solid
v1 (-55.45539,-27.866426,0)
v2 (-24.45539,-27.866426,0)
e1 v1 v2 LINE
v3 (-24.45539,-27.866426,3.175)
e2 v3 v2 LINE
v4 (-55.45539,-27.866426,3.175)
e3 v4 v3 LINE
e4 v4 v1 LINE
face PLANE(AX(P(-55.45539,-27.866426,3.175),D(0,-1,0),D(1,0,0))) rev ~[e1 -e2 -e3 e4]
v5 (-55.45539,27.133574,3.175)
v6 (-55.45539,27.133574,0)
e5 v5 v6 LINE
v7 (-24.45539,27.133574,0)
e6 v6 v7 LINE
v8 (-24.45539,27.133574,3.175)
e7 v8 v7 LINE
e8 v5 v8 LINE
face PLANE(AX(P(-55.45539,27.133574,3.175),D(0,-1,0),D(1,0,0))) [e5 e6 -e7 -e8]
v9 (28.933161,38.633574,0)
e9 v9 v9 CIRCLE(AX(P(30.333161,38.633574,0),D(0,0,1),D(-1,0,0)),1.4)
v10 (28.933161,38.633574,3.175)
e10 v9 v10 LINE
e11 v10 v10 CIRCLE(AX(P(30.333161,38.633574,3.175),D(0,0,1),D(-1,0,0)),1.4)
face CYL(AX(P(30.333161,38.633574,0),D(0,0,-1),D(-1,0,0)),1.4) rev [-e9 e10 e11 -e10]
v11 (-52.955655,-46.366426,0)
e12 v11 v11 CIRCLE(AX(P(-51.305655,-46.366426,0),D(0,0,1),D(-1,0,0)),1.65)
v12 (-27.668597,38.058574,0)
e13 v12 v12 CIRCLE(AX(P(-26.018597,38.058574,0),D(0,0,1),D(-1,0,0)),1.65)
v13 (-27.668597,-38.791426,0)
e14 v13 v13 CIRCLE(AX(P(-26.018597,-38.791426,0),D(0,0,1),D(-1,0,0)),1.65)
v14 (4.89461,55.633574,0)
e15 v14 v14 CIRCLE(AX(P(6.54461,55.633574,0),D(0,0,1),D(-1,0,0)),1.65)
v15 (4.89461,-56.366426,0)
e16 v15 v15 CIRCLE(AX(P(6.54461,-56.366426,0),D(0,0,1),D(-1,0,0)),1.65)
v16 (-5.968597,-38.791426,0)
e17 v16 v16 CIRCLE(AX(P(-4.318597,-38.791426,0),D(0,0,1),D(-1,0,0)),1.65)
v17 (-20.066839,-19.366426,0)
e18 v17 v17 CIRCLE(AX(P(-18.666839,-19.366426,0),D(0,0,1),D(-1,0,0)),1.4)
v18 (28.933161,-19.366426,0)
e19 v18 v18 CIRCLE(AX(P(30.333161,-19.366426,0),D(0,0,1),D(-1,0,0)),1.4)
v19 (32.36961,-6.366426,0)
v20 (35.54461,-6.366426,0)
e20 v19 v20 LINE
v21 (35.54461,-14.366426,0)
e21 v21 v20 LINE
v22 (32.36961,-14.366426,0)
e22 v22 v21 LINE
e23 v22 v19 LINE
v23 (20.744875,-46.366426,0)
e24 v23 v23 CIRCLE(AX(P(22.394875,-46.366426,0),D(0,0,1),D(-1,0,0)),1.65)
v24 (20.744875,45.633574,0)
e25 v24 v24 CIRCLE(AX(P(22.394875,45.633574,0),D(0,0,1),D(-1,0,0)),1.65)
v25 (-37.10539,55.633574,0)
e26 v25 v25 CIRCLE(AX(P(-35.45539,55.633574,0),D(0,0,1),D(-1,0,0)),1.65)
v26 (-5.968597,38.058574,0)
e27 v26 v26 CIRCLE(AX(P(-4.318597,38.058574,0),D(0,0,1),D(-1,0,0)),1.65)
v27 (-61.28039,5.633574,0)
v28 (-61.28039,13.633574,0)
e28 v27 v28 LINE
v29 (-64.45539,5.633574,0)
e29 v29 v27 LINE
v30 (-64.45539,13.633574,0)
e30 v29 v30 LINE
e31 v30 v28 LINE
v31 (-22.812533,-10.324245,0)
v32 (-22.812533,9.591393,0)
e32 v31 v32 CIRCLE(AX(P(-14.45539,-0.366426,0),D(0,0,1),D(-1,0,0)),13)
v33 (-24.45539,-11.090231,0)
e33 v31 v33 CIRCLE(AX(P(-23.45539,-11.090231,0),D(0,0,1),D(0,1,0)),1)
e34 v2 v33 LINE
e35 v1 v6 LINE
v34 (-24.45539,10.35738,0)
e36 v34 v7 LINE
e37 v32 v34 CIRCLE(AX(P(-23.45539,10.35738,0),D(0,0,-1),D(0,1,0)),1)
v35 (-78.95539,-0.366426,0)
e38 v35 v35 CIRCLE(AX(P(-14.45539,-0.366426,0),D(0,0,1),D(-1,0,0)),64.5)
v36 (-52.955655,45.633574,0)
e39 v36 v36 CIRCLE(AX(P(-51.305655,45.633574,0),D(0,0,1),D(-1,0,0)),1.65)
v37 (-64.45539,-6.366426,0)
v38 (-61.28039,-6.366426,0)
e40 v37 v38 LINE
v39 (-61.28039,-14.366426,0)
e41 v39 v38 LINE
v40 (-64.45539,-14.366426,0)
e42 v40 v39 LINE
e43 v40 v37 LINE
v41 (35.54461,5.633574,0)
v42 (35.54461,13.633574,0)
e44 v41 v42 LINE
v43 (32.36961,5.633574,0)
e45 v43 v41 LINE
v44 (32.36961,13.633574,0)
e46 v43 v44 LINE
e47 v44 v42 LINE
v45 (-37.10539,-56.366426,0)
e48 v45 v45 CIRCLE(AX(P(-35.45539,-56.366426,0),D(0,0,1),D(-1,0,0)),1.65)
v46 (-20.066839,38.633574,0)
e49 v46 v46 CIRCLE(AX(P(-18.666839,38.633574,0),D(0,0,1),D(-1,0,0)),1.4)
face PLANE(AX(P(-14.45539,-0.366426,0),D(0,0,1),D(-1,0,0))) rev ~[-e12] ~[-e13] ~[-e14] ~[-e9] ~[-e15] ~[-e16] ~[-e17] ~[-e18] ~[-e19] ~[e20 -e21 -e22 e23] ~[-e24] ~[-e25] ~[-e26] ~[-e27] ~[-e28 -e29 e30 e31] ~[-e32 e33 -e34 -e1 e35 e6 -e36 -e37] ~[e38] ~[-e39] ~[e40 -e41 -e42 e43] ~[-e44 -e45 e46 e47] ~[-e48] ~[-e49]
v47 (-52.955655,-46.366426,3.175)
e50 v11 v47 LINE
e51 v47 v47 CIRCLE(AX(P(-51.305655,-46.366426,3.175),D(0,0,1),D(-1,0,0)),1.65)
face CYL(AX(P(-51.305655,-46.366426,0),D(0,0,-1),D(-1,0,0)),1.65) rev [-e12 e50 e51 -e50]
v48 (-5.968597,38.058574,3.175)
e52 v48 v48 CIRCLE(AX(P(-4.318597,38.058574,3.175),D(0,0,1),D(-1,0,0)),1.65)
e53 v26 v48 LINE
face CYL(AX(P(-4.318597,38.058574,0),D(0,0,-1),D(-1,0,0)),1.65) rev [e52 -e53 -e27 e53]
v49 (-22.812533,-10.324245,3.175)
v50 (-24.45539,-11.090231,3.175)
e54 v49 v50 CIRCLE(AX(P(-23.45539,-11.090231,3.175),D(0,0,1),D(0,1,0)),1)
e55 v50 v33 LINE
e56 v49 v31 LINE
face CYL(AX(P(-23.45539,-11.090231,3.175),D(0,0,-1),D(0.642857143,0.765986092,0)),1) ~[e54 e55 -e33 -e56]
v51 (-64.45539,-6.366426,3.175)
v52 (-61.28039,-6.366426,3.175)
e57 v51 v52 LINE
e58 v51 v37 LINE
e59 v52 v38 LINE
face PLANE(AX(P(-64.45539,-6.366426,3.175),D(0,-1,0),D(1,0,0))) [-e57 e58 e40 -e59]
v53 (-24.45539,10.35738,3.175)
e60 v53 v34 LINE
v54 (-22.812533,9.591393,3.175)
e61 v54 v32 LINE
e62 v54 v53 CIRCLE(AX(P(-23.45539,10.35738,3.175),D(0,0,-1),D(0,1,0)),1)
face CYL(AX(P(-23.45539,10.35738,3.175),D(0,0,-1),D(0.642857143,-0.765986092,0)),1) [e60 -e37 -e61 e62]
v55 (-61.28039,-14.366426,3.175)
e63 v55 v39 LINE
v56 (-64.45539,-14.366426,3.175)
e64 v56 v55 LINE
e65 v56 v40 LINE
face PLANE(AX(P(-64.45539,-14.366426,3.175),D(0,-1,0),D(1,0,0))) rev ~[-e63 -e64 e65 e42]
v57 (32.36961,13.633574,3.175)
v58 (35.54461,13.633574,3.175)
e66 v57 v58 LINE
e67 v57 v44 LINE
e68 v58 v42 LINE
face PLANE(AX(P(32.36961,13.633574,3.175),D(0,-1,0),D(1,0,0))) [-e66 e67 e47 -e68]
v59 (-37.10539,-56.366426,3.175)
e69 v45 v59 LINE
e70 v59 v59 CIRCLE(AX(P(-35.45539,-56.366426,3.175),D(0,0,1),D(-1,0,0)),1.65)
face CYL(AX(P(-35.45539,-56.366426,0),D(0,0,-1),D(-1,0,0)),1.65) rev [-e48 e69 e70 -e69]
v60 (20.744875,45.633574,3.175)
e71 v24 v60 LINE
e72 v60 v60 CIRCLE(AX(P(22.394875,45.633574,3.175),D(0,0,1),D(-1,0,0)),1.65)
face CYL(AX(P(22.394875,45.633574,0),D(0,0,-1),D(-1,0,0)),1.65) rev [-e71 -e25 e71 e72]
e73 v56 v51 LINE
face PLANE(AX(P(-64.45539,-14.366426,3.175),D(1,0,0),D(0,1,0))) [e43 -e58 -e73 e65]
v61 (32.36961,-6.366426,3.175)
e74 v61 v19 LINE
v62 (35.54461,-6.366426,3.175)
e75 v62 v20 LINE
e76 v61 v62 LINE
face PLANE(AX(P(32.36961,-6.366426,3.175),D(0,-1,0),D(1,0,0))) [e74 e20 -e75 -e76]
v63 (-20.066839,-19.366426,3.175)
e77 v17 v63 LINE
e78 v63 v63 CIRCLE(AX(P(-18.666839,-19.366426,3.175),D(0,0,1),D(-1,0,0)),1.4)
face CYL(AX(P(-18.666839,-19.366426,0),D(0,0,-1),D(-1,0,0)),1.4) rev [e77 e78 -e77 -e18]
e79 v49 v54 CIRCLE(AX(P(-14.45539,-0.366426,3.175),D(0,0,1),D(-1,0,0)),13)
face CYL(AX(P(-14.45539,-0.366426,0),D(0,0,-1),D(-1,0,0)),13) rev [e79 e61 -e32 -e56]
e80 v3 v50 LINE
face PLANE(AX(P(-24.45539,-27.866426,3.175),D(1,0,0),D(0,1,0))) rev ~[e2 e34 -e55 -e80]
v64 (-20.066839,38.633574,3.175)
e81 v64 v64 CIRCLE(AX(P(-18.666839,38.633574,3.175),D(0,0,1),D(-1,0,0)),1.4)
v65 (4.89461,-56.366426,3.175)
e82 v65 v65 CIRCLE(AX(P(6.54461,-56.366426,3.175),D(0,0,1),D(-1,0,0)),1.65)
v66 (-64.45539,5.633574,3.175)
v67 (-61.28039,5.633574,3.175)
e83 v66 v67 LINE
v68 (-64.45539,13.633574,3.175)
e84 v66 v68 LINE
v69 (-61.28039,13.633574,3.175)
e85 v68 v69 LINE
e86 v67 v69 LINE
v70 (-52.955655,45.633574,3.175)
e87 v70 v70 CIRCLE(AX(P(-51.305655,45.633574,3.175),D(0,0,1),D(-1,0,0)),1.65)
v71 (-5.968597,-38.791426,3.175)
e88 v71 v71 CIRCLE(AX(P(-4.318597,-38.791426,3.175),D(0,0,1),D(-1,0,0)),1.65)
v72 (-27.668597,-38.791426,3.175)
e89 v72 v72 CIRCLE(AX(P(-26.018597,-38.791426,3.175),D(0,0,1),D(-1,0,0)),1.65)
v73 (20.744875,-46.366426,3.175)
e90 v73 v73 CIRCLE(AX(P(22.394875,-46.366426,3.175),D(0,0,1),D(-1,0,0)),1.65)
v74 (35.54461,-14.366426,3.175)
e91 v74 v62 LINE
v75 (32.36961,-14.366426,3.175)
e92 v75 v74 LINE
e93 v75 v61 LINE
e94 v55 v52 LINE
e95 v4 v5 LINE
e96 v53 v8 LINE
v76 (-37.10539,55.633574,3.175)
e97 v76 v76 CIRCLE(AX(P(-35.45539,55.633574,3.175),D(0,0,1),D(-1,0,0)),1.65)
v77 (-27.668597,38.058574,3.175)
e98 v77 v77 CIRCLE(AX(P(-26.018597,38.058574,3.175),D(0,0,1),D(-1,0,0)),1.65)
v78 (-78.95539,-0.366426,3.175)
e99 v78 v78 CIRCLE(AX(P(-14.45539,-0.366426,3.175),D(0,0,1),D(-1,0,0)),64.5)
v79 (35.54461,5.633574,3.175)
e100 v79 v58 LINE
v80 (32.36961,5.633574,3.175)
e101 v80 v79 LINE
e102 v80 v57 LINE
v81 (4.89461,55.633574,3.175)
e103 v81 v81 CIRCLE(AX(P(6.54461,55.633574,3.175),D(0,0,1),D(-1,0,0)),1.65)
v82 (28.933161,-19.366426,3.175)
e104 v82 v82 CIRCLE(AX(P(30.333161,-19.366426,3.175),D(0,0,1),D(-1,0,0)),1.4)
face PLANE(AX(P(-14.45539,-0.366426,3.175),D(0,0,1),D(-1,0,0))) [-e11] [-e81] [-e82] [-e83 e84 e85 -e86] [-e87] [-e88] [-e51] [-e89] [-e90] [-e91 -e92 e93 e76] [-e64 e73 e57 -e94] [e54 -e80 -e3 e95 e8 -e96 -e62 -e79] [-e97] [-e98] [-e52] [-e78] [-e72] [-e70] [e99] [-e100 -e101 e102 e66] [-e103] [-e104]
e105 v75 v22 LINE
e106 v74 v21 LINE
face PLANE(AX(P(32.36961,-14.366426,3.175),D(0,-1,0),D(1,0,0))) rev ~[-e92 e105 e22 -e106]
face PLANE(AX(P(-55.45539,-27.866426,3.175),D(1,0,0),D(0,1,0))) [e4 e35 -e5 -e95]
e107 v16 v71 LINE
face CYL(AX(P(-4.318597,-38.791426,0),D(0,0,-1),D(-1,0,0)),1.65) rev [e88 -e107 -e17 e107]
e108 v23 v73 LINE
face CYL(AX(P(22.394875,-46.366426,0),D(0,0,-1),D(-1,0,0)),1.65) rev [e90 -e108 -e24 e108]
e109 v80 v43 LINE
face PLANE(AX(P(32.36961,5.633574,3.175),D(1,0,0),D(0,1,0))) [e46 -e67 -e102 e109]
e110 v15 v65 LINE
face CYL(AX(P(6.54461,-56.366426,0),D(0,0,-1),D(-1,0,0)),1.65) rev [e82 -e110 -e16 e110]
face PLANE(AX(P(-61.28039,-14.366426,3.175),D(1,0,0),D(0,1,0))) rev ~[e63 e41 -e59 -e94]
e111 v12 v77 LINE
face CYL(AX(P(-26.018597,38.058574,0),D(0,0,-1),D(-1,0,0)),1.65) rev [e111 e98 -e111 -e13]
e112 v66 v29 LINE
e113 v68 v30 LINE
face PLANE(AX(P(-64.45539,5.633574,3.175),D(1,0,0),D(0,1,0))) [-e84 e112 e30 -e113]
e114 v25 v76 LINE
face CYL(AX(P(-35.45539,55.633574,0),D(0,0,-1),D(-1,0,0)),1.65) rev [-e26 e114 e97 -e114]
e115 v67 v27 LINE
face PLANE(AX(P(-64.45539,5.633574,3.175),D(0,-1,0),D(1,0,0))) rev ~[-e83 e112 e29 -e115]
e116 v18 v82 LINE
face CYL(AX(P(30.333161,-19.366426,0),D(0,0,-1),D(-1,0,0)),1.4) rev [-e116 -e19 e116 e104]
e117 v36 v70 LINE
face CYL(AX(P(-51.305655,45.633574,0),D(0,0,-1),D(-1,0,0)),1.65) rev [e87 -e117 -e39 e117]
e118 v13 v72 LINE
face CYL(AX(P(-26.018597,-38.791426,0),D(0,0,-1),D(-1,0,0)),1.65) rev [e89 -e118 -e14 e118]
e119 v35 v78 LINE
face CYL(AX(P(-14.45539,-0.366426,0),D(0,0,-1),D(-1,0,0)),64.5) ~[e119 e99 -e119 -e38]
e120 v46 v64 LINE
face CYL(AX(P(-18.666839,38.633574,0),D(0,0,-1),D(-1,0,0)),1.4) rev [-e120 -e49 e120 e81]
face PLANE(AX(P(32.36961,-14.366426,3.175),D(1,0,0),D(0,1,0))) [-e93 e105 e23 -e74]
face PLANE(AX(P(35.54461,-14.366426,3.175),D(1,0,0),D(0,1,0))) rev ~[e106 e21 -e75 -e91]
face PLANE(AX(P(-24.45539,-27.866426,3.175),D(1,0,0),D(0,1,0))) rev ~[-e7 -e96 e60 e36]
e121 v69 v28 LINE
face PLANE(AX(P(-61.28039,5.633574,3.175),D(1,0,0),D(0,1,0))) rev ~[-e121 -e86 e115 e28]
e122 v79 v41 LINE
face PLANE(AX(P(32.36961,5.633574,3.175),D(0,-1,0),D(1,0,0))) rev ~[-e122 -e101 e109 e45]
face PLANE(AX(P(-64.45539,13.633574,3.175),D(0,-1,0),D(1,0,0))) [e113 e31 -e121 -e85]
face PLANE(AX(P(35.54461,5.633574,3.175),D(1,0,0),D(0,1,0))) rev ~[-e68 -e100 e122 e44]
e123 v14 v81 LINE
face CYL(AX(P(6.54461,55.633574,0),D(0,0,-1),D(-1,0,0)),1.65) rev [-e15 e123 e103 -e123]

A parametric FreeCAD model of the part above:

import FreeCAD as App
import Part
import Sketcher
Q = App.Units.Quantity


def edges_at(feature, points):
    """Names of the edges that pass closest to the given points."""
    edges = feature.Shape.Edges
    near = lambda p: min(range(len(edges)), key=lambda i: edges[i].distToShape(Part.Vertex(*p))[0])
    return sorted({f"Edge{near(p) + 1}" for p in points})

doc = App.newDocument("Part")
body = doc.addObject("PartDesign::Body", "Body")

# Sketch on XY plane
sketch1 = body.newObject("Sketcher::SketchObject", "Sketch")
sketch1.AttachmentSupport = (doc.getObject("XY_Plane"), [""])
sketch1.MapMode = "FlatFace"
sketch1.addGeometry([
    Part.Circle(App.Vector(-14.5, -0.4, 0), App.Vector(0, 0, 1), 64.5),  # 0
    Part.Circle(App.Vector(22.4, 45.6, 0), App.Vector(0, 0, 1), 1.6),  # 1
    Part.Circle(App.Vector(30.3, 38.6, 0), App.Vector(0, 0, 1), 1.4),  # 2
    Part.Circle(App.Vector(6.5, 55.6, 0), App.Vector(0, 0, 1), 1.6),  # 3
    Part.Circle(App.Vector(-4.3, 38.1, 0), App.Vector(0, 0, 1), 1.6),  # 4
    Part.Circle(App.Vector(-18.7, 38.6, 0), App.Vector(0, 0, 1), 1.4),  # 5
    Part.Circle(App.Vector(-26, 38.1, 0), App.Vector(0, 0, 1), 1.6),  # 6
    Part.Circle(App.Vector(-35.5, 55.6, 0), App.Vector(0, 0, 1), 1.6),  # 7
    Part.Circle(App.Vector(-51.3, 45.6, 0), App.Vector(0, 0, 1), 1.6),  # 8
    Part.Circle(App.Vector(-14.5, -0.4, 0), App.Vector(0, 0, 1), 13),  # 9
    Part.Circle(App.Vector(30.3, -19.4, 0), App.Vector(0, 0, 1), 1.4),  # 10
    Part.Circle(App.Vector(22.4, -46.4, 0), App.Vector(0, 0, 1), 1.6),  # 11
    Part.Circle(App.Vector(-4.3, -38.8, 0), App.Vector(0, 0, 1), 1.6),  # 12
    Part.Circle(App.Vector(6.5, -56.4, 0), App.Vector(0, 0, 1), 1.6),  # 13
    Part.Circle(App.Vector(-18.7, -19.4, 0), App.Vector(0, 0, 1), 1.4),  # 14
    Part.Circle(App.Vector(-26, -38.8, 0), App.Vector(0, 0, 1), 1.6),  # 15
    Part.Circle(App.Vector(-35.5, -56.4, 0), App.Vector(0, 0, 1), 1.6),  # 16
    Part.Circle(App.Vector(-51.3, -46.4, 0), App.Vector(0, 0, 1), 1.6),  # 17
], False)
sketch1.addConstraint([
    Sketcher.Constraint("Coincident", 9, 3, 0, 3),
    Sketcher.Constraint("Equal", 1, 3),
    Sketcher.Constraint("Equal", 3, 4),
    Sketcher.Constraint("Equal", 2, 5),
    Sketcher.Constraint("Equal", 4, 6),
    Sketcher.Constraint("Equal", 6, 7),
    Sketcher.Constraint("Equal", 7, 8),
    Sketcher.Constraint("Equal", 5, 10),
    Sketcher.Constraint("Equal", 8, 11),
    Sketcher.Constraint("Equal", 11, 12),
    Sketcher.Constraint("Equal", 12, 13),
    Sketcher.Constraint("Equal", 10, 14),
    Sketcher.Constraint("Equal", 13, 15),
    Sketcher.Constraint("Equal", 15, 16),
    Sketcher.Constraint("Equal", 16, 17),
    Sketcher.Constraint("Horizontal", 2, 3, 5, 3),
    Sketcher.Constraint("Horizontal", 4, 3, 6, 3),
    Sketcher.Constraint("Horizontal", 3, 3, 7, 3),
    Sketcher.Constraint("Horizontal", 1, 3, 8, 3),
    Sketcher.Constraint("Horizontal", 10, 3, 14, 3),
    Sketcher.Constraint("Horizontal", 12, 3, 15, 3),
    Sketcher.Constraint("Horizontal", 13, 3, 16, 3),
    Sketcher.Constraint("Horizontal", 11, 3, 17, 3),
    Sketcher.Constraint("Vertical", 2, 3, 10, 3),
    Sketcher.Constraint("Vertical", 1, 3, 11, 3),
    Sketcher.Constraint("Vertical", 4, 3, 12, 3),
    Sketcher.Constraint("Vertical", 3, 3, 13, 3),
    Sketcher.Constraint("Vertical", 5, 3, 14, 3),
    Sketcher.Constraint("Vertical", 6, 3, 15, 3),
    Sketcher.Constraint("Vertical", 7, 3, 16, 3),
    Sketcher.Constraint("Vertical", 8, 3, 17, 3),
    Sketcher.Constraint("Diameter", 0, Q("129 mm")),
    Sketcher.Constraint("Diameter", 9, Q("26 mm")),
    Sketcher.Constraint("Diameter", 1, Q("3.3 mm")),
    Sketcher.Constraint("Diameter", 2, Q("2.8 mm")),
    Sketcher.Constraint("DistanceY", 0, 3, 1, 3, Q("46 mm")),
    Sketcher.Constraint("DistanceY", 2, 3, 1, 3, Q("7 mm")),
    Sketcher.Constraint("DistanceY", 1, 3, 3, 3, Q("10 mm")),
    Sketcher.Constraint("DistanceX", 0, 3, 3, 3, Q("21 mm")),
    Sketcher.Constraint("DistanceX", 5, 3, 2, 3, Q("49 mm")),
    Sketcher.Constraint("DistanceX", 7, 3, 3, 3, Q("42 mm")),
    Sketcher.Constraint("DistanceY", 10, 3, 0, 3, Q("19 mm")),
    Sketcher.Constraint("DistanceY", 11, 3, 10, 3, Q("27 mm")),
    Sketcher.Constraint("DistanceY", 13, 3, 11, 3, Q("10 mm")),
    Sketcher.Constraint("DistanceX", 6, 3, 4, 3, Q("21.7 mm")),
    Sketcher.Constraint("DistanceY", 12, 3, 4, 3, Q("76.85 mm")),
    Sketcher.Constraint("DistanceY", 4, 3, 3, 3, Q("17.575 mm")),
    Sketcher.Constraint("DistanceX", 0, 3, -1, 1, Q("14.45539 mm")),
    Sketcher.Constraint("DistanceX", -1, 1, 2, 3, Q("30.333161 mm")),
    Sketcher.Constraint("DistanceX", 4, 3, 1, 3, Q("26.713471 mm")),
    Sketcher.Constraint("DistanceX", 8, 3, 6, 3, Q("25.287059 mm")),
    Sketcher.Constraint("DistanceY", 0, 3, -1, 1, Q("0.366426 mm")),
    Sketcher.Constraint("DistanceX", -1, 1, 1, 3, Q("22.394875 mm")),
])
pad1 = body.newObject("PartDesign::Pad", "Pad")
pad1.Profile = sketch1
pad1.Length = 3.175

# Sketch on XY plane
sketch2 = body.newObject("Sketcher::SketchObject", "Sketch001")
sketch2.AttachmentSupport = (doc.getObject("XY_Plane"), [""])
sketch2.MapMode = "FlatFace"
sketch2.AttachmentOffset = App.Placement(App.Vector(0, 0, 3.175), App.Rotation())
sketch2.addGeometry([
    Part.LineSegment(App.Vector(32.4, -6.4, 0), App.Vector(32.4, -14.4, 0)),  # 0
    Part.LineSegment(App.Vector(32.4, -14.4, 0), App.Vector(35.5, -14.4, 0)),  # 1
    Part.LineSegment(App.Vector(35.5, -14.4, 0), App.Vector(35.5, -6.4, 0)),  # 2
    Part.LineSegment(App.Vector(35.5, -6.4, 0), App.Vector(32.4, -6.4, 0)),  # 3
    Part.LineSegment(App.Vector(32.4, 13.6, 0), App.Vector(32.4, 5.6, 0)),  # 4
    Part.LineSegment(App.Vector(32.4, 5.6, 0), App.Vector(35.5, 5.6, 0)),  # 5
    Part.LineSegment(App.Vector(35.5, 5.6, 0), App.Vector(35.5, 13.6, 0)),  # 6
    Part.LineSegment(App.Vector(35.5, 13.6, 0), App.Vector(32.4, 13.6, 0)),  # 7
    Part.LineSegment(App.Vector(-64.5, 13.6, 0), App.Vector(-64.5, 5.6, 0)),  # 8
    Part.LineSegment(App.Vector(-64.5, 5.6, 0), App.Vector(-61.3, 5.6, 0)),  # 9
    Part.LineSegment(App.Vector(-61.3, 5.6, 0), App.Vector(-61.3, 13.6, 0)),  # 10
    Part.LineSegment(App.Vector(-61.3, 13.6, 0), App.Vector(-64.5, 13.6, 0)),  # 11
    Part.LineSegment(App.Vector(-64.5, -6.4, 0), App.Vector(-64.5, -14.4, 0)),  # 12
    Part.LineSegment(App.Vector(-64.5, -14.4, 0), App.Vector(-61.3, -14.4, 0)),  # 13
    Part.LineSegment(App.Vector(-61.3, -14.4, 0), App.Vector(-61.3, -6.4, 0)),  # 14
    Part.LineSegment(App.Vector(-61.3, -6.4, 0), App.Vector(-64.5, -6.4, 0)),  # 15
], False)
sketch2.addConstraint([
    Sketcher.Constraint("Coincident", 0, 2, 1, 1),
    Sketcher.Constraint("Coincident", 1, 2, 2, 1),
    Sketcher.Constraint("Coincident", 2, 2, 3, 1),
    Sketcher.Constraint("Coincident", 3, 2, 0, 1),
    Sketcher.Constraint("Coincident", 4, 2, 5, 1),
    Sketcher.Constraint("Coincident", 5, 2, 6, 1),
    Sketcher.Constraint("Coincident", 6, 2, 7, 1),
    Sketcher.Constraint("Coincident", 7, 2, 4, 1),
    Sketcher.Constraint("Coincident", 8, 2, 9, 1),
    Sketcher.Constraint("Coincident", 9, 2, 10, 1),
    Sketcher.Constraint("Coincident", 10, 2, 11, 1),
    Sketcher.Constraint("Coincident", 11, 2, 8, 1),
    Sketcher.Constraint("Coincident", 12, 2, 13, 1),
    Sketcher.Constraint("Coincident", 13, 2, 14, 1),
    Sketcher.Constraint("Coincident", 14, 2, 15, 1),
    Sketcher.Constraint("Coincident", 15, 2, 12, 1),
    Sketcher.Constraint("Vertical", 0),
    Sketcher.Constraint("Horizontal", 1),
    Sketcher.Constraint("Vertical", 2),
    Sketcher.Constraint("Horizontal", 3),
    Sketcher.Constraint("Vertical", 4),
    Sketcher.Constraint("Horizontal", 5),
    Sketcher.Constraint("Vertical", 6),
    Sketcher.Constraint("Horizontal", 7),
    Sketcher.Constraint("Vertical", 8),
    Sketcher.Constraint("Horizontal", 9),
    Sketcher.Constraint("Vertical", 10),
    Sketcher.Constraint("Horizontal", 11),
    Sketcher.Constraint("Vertical", 12),
    Sketcher.Constraint("Horizontal", 13),
    Sketcher.Constraint("Vertical", 14),
    Sketcher.Constraint("Horizontal", 15),
    Sketcher.Constraint("Horizontal", 5, 2, 8, 2),
    Sketcher.Constraint("Horizontal", 7, 2, 10, 2),
    Sketcher.Constraint("Horizontal", 1, 2, 12, 2),
    Sketcher.Constraint("Horizontal", 3, 2, 14, 2),
    Sketcher.Constraint("Vertical", 3, 2, 4, 2),
    Sketcher.Constraint("Vertical", 2, 2, 5, 2),
    Sketcher.Constraint("Vertical", 11, 2, 12, 2),
    Sketcher.Constraint("Vertical", 10, 2, 13, 2),
    Sketcher.Constraint("Equal", 7, 9),
    Sketcher.Constraint("Equal", 2, 4),
    Sketcher.Constraint("DistanceY", 0, 2, 0, 1, Q("8 mm")),
    Sketcher.Constraint("DistanceY", 3, 2, 4, 2, Q("12 mm")),
    Sketcher.Constraint("DistanceX", 8, 2, 5, 2, Q("100 mm")),
    Sketcher.Constraint("DistanceX", 1, 1, 1, 2, Q("3.175 mm")),
    Sketcher.Constraint("DistanceX", -1, 1, 0, 2, Q("32.36961 mm")),
    Sketcher.Constraint("DistanceY", 0, 2, -1, 1, Q("14.366426 mm")),
])
pocket1 = body.newObject("PartDesign::Pocket", "Pocket")
pocket1.Profile = sketch2
pocket1.Type = "ThroughAll"

# Sketch on XY plane
sketch3 = body.newObject("Sketcher::SketchObject", "Sketch002")
sketch3.AttachmentSupport = (doc.getObject("XY_Plane"), [""])
sketch3.MapMode = "FlatFace"
sketch3.AttachmentOffset = App.Placement(App.Vector(0, 0, 3.175), App.Rotation())
sketch3.addGeometry([
    Part.LineSegment(App.Vector(-55, 27, 0), App.Vector(-55, -28, 0)),
    Part.LineSegment(App.Vector(-55, -28, 0), App.Vector(-24, -28, 0)),
    Part.LineSegment(App.Vector(-24, -28, 0), App.Vector(-24, 27, 0)),
    Part.LineSegment(App.Vector(-24, 27, 0), App.Vector(-55, 27, 0)),
], False)
sketch3.addConstraint([
    Sketcher.Constraint("Coincident", 0, 2, 1, 1),
    Sketcher.Constraint("Coincident", 1, 2, 2, 1),
    Sketcher.Constraint("Coincident", 2, 2, 3, 1),
    Sketcher.Constraint("Coincident", 3, 2, 0, 1),
    Sketcher.Constraint("Vertical", 0),
    Sketcher.Constraint("Horizontal", 1),
    Sketcher.Constraint("Vertical", 2),
    Sketcher.Constraint("Horizontal", 3),
    Sketcher.Constraint("DistanceX", 1, 1, 1, 2, Q("31 mm")),
    Sketcher.Constraint("DistanceY", 0, 2, 0, 1, Q("55 mm")),
    Sketcher.Constraint("DistanceX", 0, 2, -1, 1, Q("55.45539 mm")),
    Sketcher.Constraint("DistanceY", 0, 2, -1, 1, Q("27.866426 mm")),
])
pocket2 = body.newObject("PartDesign::Pocket", "Pocket001")
pocket2.Profile = sketch3
pocket2.Type = "ThroughAll"
doc.recompute()

fillet = body.newObject("PartDesign::Fillet", "Fillet")
fillet.Base = (pocket2, edges_at(pocket2, [(-24.455, 7.94, 1.587), (-24.455, -8.673, 1.587)]))
fillet.Radius = 1

doc.recompute()
